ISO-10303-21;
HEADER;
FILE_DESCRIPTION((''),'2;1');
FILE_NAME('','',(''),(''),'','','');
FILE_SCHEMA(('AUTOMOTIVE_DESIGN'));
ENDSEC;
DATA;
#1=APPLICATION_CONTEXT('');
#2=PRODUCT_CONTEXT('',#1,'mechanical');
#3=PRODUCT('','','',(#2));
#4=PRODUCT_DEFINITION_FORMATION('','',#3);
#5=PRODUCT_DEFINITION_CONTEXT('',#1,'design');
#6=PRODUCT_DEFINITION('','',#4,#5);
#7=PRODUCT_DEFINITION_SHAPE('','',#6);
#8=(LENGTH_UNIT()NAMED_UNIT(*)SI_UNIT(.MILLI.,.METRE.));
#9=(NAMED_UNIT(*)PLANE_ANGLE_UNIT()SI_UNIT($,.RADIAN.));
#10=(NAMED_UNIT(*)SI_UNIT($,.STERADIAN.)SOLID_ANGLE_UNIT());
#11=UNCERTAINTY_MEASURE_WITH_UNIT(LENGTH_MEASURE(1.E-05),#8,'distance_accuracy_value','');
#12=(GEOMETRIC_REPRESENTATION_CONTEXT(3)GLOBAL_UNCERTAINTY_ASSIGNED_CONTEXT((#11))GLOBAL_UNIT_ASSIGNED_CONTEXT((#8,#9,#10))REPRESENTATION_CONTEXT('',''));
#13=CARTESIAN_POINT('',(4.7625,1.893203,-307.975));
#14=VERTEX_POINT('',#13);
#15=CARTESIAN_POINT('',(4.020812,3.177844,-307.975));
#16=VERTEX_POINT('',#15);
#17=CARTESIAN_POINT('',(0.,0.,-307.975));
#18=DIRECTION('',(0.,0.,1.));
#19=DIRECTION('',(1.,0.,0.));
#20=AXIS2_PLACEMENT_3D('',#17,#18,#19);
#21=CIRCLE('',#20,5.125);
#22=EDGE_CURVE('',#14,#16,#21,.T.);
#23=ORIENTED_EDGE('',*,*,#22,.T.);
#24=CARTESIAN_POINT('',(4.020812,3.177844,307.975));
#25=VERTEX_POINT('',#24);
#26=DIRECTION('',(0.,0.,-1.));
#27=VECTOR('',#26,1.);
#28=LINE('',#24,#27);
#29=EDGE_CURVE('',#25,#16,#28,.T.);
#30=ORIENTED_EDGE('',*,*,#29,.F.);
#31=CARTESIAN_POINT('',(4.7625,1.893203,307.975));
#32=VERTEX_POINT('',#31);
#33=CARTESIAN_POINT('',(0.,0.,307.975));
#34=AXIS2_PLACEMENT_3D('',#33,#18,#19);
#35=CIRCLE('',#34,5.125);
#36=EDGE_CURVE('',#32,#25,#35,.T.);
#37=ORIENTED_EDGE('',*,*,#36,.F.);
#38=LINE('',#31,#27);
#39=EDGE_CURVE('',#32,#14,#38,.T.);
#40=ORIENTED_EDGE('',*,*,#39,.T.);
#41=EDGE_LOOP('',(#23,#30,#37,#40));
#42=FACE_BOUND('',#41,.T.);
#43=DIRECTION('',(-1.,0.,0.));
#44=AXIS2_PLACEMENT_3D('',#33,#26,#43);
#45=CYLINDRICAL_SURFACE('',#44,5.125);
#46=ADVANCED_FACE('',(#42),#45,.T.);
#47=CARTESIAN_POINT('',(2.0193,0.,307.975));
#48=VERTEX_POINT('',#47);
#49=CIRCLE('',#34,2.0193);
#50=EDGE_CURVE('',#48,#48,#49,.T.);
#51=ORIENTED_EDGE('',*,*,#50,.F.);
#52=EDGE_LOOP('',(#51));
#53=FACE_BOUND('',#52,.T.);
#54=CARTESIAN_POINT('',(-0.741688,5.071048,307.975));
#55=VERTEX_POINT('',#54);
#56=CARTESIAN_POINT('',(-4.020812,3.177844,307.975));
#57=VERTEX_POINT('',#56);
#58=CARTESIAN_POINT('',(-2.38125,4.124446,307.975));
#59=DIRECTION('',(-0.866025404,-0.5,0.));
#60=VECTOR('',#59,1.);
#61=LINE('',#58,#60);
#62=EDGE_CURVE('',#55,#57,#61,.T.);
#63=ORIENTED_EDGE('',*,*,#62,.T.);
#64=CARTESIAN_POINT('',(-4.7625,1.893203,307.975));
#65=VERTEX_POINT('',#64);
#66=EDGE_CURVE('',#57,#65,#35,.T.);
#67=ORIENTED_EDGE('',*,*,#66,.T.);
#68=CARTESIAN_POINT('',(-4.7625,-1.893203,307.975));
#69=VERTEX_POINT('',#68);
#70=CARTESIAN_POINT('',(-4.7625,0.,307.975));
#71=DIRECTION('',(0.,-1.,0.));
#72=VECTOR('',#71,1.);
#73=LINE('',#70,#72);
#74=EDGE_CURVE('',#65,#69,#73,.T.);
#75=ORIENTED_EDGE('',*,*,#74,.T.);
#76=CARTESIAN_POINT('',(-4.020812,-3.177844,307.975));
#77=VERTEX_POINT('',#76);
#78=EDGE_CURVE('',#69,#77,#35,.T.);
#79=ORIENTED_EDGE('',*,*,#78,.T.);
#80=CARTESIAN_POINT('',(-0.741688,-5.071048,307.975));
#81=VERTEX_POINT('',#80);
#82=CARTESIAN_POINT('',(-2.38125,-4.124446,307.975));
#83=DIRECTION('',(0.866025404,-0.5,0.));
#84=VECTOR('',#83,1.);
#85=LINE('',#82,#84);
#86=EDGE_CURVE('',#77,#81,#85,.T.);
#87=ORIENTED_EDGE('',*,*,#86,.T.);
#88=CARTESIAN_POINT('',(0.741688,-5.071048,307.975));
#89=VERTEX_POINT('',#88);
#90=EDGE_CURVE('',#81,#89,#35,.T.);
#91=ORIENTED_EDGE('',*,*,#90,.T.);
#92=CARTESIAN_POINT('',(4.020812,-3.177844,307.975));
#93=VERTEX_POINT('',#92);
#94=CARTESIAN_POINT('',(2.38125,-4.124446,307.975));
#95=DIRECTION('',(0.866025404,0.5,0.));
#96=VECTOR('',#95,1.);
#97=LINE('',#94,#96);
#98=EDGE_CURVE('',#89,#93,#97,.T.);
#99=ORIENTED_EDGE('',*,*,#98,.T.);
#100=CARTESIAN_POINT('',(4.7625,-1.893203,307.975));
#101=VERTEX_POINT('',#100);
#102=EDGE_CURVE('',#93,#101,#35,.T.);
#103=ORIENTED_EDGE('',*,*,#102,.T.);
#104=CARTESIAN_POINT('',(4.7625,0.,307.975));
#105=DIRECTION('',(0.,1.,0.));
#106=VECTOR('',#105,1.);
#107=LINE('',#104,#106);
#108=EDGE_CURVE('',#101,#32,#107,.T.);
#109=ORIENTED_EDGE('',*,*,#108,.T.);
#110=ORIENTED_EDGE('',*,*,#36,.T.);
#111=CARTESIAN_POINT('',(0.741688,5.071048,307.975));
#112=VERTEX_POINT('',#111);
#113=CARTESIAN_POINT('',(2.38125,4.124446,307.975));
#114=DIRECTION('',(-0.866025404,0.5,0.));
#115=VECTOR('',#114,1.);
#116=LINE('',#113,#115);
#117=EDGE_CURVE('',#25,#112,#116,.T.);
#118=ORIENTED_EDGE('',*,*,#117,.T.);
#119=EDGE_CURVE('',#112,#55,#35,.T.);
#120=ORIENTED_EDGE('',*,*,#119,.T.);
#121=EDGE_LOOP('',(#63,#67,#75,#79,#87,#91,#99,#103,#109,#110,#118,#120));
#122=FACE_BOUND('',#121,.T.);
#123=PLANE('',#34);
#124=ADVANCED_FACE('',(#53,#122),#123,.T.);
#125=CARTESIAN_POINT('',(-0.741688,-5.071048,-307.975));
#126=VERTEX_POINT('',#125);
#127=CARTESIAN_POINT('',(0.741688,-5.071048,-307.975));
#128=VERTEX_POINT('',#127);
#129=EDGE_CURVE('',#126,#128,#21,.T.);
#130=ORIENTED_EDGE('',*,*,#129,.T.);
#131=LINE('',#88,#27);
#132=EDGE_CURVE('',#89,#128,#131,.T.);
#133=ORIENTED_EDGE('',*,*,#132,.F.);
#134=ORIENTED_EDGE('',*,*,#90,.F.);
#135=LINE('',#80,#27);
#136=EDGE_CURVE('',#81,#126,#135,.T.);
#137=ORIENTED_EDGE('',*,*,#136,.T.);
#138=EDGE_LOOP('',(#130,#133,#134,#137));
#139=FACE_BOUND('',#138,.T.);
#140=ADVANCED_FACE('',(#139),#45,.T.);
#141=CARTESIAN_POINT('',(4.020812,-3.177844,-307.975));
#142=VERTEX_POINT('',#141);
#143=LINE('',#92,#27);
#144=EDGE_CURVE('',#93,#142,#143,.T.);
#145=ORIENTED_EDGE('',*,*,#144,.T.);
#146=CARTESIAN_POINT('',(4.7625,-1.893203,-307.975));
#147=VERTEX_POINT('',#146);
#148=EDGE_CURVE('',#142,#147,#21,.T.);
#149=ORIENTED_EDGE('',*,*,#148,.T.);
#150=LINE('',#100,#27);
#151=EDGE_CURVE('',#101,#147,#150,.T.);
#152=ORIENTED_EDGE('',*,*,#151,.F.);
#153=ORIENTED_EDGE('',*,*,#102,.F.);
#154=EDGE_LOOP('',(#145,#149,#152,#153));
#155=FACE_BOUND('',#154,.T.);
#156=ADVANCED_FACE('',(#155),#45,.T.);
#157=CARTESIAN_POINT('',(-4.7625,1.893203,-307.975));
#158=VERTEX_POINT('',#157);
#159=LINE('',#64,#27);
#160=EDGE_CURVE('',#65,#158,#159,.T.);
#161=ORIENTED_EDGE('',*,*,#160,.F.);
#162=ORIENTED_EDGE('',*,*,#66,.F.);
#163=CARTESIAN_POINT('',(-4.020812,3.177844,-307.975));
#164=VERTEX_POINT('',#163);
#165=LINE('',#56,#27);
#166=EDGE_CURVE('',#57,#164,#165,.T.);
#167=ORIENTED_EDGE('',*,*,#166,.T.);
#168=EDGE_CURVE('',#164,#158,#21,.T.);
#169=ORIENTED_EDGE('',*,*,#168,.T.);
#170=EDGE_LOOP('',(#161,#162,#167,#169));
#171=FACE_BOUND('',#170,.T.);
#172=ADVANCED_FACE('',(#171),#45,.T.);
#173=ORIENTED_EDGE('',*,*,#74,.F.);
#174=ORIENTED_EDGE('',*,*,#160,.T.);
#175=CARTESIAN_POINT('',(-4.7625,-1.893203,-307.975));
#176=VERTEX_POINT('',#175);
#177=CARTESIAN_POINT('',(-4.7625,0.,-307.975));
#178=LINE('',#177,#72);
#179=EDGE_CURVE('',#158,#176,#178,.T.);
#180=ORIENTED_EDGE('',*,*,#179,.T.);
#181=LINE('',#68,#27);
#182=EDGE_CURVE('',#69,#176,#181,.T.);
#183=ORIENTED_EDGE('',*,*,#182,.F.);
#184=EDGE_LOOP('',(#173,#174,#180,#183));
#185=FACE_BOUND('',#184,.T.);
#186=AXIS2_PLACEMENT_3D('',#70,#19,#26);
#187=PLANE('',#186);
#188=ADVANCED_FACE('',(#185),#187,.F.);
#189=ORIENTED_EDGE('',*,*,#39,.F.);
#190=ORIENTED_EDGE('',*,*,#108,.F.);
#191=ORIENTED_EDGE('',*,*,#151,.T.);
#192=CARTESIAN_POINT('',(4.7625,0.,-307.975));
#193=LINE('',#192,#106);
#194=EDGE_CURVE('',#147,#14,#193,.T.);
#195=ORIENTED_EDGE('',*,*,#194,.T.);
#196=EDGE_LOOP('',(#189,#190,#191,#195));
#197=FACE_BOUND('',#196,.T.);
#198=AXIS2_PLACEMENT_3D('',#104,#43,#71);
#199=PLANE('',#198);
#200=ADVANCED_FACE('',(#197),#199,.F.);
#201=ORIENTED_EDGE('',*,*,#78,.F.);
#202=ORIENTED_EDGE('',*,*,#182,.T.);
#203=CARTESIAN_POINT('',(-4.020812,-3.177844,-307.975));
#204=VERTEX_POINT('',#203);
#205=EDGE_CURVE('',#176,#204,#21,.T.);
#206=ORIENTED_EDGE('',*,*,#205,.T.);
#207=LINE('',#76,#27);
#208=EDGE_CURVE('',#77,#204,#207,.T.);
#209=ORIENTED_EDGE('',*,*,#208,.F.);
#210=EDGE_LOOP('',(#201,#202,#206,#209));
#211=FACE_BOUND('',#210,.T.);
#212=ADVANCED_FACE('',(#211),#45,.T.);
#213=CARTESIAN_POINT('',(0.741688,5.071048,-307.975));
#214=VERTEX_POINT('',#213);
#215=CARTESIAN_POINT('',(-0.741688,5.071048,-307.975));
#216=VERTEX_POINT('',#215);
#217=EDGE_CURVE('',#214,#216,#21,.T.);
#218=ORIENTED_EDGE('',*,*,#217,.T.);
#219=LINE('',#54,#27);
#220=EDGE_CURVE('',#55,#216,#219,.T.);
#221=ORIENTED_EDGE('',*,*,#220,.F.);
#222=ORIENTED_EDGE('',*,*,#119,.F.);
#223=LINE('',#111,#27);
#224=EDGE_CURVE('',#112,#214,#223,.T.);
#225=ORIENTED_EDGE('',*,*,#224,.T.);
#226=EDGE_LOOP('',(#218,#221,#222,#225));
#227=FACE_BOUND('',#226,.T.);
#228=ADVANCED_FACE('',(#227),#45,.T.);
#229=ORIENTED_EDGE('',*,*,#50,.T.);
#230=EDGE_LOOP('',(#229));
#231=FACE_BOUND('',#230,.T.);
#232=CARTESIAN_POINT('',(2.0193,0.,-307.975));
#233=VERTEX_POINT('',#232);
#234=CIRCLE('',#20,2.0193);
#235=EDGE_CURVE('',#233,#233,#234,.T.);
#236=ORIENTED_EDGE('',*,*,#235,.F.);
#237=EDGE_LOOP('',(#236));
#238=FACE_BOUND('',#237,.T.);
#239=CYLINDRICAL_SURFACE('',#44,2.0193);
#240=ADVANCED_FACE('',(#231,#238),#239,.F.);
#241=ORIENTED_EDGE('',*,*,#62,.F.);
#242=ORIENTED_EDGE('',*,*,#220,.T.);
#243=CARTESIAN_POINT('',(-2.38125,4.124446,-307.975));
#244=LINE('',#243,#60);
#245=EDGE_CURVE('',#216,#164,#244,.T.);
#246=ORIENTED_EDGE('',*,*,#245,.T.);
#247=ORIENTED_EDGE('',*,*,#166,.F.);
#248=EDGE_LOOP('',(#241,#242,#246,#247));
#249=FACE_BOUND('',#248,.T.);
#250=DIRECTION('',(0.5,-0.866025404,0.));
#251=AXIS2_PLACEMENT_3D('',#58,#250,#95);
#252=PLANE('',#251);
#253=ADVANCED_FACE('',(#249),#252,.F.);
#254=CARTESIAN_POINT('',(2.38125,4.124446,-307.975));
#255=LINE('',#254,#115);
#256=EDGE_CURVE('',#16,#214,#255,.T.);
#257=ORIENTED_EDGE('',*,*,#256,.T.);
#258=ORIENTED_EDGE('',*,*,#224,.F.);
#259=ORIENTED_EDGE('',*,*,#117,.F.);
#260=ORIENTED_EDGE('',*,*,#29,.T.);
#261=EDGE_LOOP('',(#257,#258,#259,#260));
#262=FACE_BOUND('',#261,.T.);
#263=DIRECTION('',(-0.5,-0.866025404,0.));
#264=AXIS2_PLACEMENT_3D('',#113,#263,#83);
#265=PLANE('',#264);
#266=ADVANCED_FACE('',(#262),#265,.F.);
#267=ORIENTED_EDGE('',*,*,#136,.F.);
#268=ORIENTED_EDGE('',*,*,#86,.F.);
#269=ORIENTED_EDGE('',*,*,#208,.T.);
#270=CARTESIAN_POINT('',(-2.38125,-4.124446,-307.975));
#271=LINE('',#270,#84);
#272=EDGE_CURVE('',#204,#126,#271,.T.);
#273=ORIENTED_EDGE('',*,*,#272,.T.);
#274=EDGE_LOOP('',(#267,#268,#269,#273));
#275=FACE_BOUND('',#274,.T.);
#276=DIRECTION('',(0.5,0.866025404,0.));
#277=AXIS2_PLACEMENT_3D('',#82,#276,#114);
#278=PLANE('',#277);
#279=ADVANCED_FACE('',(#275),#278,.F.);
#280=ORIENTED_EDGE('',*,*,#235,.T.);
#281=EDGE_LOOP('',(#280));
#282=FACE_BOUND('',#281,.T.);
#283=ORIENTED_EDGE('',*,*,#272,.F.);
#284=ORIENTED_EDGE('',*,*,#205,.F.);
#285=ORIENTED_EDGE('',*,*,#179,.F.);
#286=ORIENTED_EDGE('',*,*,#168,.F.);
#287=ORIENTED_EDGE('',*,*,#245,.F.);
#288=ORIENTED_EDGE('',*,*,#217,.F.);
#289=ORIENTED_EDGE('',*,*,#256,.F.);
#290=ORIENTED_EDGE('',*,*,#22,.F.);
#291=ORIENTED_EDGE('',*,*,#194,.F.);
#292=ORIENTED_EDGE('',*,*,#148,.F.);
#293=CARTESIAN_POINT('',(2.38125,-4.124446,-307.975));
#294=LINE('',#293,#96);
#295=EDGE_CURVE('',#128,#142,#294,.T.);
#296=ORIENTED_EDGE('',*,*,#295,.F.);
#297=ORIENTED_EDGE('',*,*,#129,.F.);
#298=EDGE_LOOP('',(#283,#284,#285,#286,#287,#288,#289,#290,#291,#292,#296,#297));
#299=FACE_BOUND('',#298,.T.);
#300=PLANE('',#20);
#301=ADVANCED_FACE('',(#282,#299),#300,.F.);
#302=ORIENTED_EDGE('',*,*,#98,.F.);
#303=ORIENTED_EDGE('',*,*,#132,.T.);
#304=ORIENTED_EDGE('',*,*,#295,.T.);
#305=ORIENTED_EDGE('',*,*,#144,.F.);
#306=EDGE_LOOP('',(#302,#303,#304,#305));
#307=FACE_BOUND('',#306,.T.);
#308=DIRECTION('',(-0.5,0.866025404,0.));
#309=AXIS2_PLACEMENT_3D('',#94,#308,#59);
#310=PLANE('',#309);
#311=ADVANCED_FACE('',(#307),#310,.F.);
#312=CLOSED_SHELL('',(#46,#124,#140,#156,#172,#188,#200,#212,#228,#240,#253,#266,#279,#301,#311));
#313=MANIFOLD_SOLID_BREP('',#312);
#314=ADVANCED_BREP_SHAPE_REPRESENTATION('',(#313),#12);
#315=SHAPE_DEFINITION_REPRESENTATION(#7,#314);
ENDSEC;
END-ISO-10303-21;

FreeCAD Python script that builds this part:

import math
import FreeCAD as App
import Part
import Sketcher
Q = App.Units.Quantity

doc = App.newDocument("Part")
body = doc.addObject("PartDesign::Body", "Body")

# Sketch on XY plane
sketch1 = body.newObject("Sketcher::SketchObject", "Sketch")
sketch1.AttachmentSupport = (doc.getObject("XY_Plane"), [""])
sketch1.MapMode = "FlatFace"
sketch1.addGeometry([
    Part.ArcOfCircle(Part.Circle(App.Vector(0, 0, 0), App.Vector(0, 0, 1), 5.1), math.radians(81.68), math.radians(98.32)),  # 0
    Part.LineSegment(App.Vector(-0.7, 5.1, 0), App.Vector(-4, 3.2, 0)),  # 1
    Part.ArcOfCircle(Part.Circle(App.Vector(0, 0, 0), App.Vector(0, 0, 1), 5.1), math.radians(141.68), math.radians(158.32)),  # 2
    Part.LineSegment(App.Vector(-4.8, 1.9, 0), App.Vector(-4.8, -1.9, 0)),  # 3
    Part.ArcOfCircle(Part.Circle(App.Vector(0, 0, 0), App.Vector(0, 0, 1), 5.1), math.radians(-158.32), math.radians(-141.68)),  # 4
    Part.LineSegment(App.Vector(-4, -3.2, 0), App.Vector(-0.7, -5.1, 0)),  # 5
    Part.ArcOfCircle(Part.Circle(App.Vector(0, 0, 0), App.Vector(0, 0, 1), 5.1), math.radians(-98.32), math.radians(-81.68)),  # 6
    Part.LineSegment(App.Vector(0.7, -5.1, 0), App.Vector(4, -3.2, 0)),  # 7
    Part.ArcOfCircle(Part.Circle(App.Vector(0, 0, 0), App.Vector(0, 0, 1), 5.1), math.radians(-38.32), math.radians(-21.68)),  # 8
    Part.LineSegment(App.Vector(4.8, -1.9, 0), App.Vector(4.8, 1.9, 0)),  # 9
    Part.ArcOfCircle(Part.Circle(App.Vector(0, 0, 0), App.Vector(0, 0, 1), 5.1), math.radians(21.68), math.radians(38.32)),  # 10
    Part.LineSegment(App.Vector(4, 3.2, 0), App.Vector(0.7, 5.1, 0)),  # 11
    Part.Circle(App.Vector(0, 0, 0), App.Vector(0, 0, 1), 2),  # 12
], False)
sketch1.addConstraint([
    Sketcher.Constraint("Coincident", 0, 2, 1, 1),
    Sketcher.Constraint("Coincident", 1, 2, 2, 1),
    Sketcher.Constraint("Coincident", 2, 2, 3, 1),
    Sketcher.Constraint("Coincident", 3, 2, 4, 1),
    Sketcher.Constraint("Coincident", 4, 2, 5, 1),
    Sketcher.Constraint("Coincident", 5, 2, 6, 1),
    Sketcher.Constraint("Coincident", 6, 2, 7, 1),
    Sketcher.Constraint("Coincident", 7, 2, 8, 1),
    Sketcher.Constraint("Coincident", 8, 2, 9, 1),
    Sketcher.Constraint("Coincident", 9, 2, 10, 1),
    Sketcher.Constraint("Coincident", 10, 2, 11, 1),
    Sketcher.Constraint("Coincident", 11, 2, 0, 1),
    Sketcher.Constraint("Vertical", 3),
    Sketcher.Constraint("Vertical", 9),
    Sketcher.Constraint("Coincident", 0, 3, -1, 1),
    Sketcher.Constraint("Coincident", 2, 3, -1, 1),
    Sketcher.Constraint("Coincident", 4, 3, -1, 1),
    Sketcher.Constraint("Coincident", 6, 3, -1, 1),
    Sketcher.Constraint("Coincident", 8, 3, -1, 1),
    Sketcher.Constraint("Coincident", 10, 3, -1, 1),
    Sketcher.Constraint("Coincident", 12, 3, -1, 1),
    Sketcher.Constraint("Equal", 0, 2),
    Sketcher.Constraint("Equal", 2, 4),
    Sketcher.Constraint("Equal", 4, 6),
    Sketcher.Constraint("Equal", 6, 8),
    Sketcher.Constraint("Equal", 8, 10),
    Sketcher.Constraint("Parallel", 1, 7),
    Sketcher.Constraint("Parallel", 5, 11),
    Sketcher.Constraint("Horizontal", 5, 2, 6, 2),
    Sketcher.Constraint("Horizontal", 4, 2, 7, 2),
    Sketcher.Constraint("Horizontal", 3, 2, 8, 2),
    Sketcher.Constraint("Horizontal", 1, 2, 10, 2),
    Sketcher.Constraint("Vertical", 1, 2, 4, 2),
    Sketcher.Constraint("Diameter", 12, Q("0.159 in")),
    Sketcher.Constraint("Angle", 1, Q("-150 deg")),
    Sketcher.Constraint("Radius", 0, Q("5.125 mm")),
    Sketcher.Constraint("DistanceX", 2, 2, -1, 1, Q("0.1875 in")),
    Sketcher.Constraint("DistanceX", 4, 2, 6, 2, Q("0.1875 in")),
])
pad1 = body.newObject("PartDesign::Pad", "Pad")
pad1.Profile = sketch1
pad1.Length = Q("24.25 in")
pad1.Midplane = True

# Sketch on XY plane
sketch2 = body.newObject("Sketcher::SketchObject", "Sketch001")
sketch2.AttachmentSupport = (doc.getObject("XY_Plane"), [""])
sketch2.MapMode = "FlatFace"
sketch2.AttachmentOffset = App.Placement(App.Vector(0, 0, -12.125 * 25.4), App.Rotation())
sketch2.addGeometry(Part.Circle(App.Vector(0, 0, 0), App.Vector(0, 0, 1), 2), False)
sketch2.addConstraint([
    Sketcher.Constraint("Coincident", 0, 3, -1, 1),
    Sketcher.Constraint("Diameter", 0, Q("0.159 in")),
])
doc.recompute()
hole = body.newObject("PartDesign::Hole", "Hole")
hole.Profile = sketch2
hole.ThreadType = "None"
hole.Diameter = Q("0.159 in")
hole.DepthType = "Dimension"
hole.Depth = Q("0.6436 in")
hole.DrillPoint = "Angled"
hole.DrillPointAngle = 118
hole.Reversed = True

# Sketch on XY plane
sketch3 = body.newObject("Sketcher::SketchObject", "Sketch002")
sketch3.AttachmentSupport = (doc.getObject("XY_Plane"), [""])
sketch3.MapMode = "FlatFace"
sketch3.AttachmentOffset = App.Placement(App.Vector(0, 0, 12.125 * 25.4), App.Rotation())
sketch3.addGeometry(Part.Circle(App.Vector(0, 0, 0), App.Vector(0, 0, 1), 2), False)
sketch3.addConstraint([
    Sketcher.Constraint("Coincident", 0, 3, -1, 1),
    Sketcher.Constraint("Diameter", 0, Q("0.159 in")),
])
doc.recompute()
hole2 = body.newObject("PartDesign::Hole", "Hole001")
hole2.Profile = sketch3
hole2.ThreadType = "None"
hole2.Diameter = Q("0.159 in")
hole2.DepthType = "Dimension"
hole2.Depth = Q("0.6436 in")
hole2.DrillPoint = "Angled"
hole2.DrillPointAngle = 118
hole2.Reversed = True

doc.recompute()
